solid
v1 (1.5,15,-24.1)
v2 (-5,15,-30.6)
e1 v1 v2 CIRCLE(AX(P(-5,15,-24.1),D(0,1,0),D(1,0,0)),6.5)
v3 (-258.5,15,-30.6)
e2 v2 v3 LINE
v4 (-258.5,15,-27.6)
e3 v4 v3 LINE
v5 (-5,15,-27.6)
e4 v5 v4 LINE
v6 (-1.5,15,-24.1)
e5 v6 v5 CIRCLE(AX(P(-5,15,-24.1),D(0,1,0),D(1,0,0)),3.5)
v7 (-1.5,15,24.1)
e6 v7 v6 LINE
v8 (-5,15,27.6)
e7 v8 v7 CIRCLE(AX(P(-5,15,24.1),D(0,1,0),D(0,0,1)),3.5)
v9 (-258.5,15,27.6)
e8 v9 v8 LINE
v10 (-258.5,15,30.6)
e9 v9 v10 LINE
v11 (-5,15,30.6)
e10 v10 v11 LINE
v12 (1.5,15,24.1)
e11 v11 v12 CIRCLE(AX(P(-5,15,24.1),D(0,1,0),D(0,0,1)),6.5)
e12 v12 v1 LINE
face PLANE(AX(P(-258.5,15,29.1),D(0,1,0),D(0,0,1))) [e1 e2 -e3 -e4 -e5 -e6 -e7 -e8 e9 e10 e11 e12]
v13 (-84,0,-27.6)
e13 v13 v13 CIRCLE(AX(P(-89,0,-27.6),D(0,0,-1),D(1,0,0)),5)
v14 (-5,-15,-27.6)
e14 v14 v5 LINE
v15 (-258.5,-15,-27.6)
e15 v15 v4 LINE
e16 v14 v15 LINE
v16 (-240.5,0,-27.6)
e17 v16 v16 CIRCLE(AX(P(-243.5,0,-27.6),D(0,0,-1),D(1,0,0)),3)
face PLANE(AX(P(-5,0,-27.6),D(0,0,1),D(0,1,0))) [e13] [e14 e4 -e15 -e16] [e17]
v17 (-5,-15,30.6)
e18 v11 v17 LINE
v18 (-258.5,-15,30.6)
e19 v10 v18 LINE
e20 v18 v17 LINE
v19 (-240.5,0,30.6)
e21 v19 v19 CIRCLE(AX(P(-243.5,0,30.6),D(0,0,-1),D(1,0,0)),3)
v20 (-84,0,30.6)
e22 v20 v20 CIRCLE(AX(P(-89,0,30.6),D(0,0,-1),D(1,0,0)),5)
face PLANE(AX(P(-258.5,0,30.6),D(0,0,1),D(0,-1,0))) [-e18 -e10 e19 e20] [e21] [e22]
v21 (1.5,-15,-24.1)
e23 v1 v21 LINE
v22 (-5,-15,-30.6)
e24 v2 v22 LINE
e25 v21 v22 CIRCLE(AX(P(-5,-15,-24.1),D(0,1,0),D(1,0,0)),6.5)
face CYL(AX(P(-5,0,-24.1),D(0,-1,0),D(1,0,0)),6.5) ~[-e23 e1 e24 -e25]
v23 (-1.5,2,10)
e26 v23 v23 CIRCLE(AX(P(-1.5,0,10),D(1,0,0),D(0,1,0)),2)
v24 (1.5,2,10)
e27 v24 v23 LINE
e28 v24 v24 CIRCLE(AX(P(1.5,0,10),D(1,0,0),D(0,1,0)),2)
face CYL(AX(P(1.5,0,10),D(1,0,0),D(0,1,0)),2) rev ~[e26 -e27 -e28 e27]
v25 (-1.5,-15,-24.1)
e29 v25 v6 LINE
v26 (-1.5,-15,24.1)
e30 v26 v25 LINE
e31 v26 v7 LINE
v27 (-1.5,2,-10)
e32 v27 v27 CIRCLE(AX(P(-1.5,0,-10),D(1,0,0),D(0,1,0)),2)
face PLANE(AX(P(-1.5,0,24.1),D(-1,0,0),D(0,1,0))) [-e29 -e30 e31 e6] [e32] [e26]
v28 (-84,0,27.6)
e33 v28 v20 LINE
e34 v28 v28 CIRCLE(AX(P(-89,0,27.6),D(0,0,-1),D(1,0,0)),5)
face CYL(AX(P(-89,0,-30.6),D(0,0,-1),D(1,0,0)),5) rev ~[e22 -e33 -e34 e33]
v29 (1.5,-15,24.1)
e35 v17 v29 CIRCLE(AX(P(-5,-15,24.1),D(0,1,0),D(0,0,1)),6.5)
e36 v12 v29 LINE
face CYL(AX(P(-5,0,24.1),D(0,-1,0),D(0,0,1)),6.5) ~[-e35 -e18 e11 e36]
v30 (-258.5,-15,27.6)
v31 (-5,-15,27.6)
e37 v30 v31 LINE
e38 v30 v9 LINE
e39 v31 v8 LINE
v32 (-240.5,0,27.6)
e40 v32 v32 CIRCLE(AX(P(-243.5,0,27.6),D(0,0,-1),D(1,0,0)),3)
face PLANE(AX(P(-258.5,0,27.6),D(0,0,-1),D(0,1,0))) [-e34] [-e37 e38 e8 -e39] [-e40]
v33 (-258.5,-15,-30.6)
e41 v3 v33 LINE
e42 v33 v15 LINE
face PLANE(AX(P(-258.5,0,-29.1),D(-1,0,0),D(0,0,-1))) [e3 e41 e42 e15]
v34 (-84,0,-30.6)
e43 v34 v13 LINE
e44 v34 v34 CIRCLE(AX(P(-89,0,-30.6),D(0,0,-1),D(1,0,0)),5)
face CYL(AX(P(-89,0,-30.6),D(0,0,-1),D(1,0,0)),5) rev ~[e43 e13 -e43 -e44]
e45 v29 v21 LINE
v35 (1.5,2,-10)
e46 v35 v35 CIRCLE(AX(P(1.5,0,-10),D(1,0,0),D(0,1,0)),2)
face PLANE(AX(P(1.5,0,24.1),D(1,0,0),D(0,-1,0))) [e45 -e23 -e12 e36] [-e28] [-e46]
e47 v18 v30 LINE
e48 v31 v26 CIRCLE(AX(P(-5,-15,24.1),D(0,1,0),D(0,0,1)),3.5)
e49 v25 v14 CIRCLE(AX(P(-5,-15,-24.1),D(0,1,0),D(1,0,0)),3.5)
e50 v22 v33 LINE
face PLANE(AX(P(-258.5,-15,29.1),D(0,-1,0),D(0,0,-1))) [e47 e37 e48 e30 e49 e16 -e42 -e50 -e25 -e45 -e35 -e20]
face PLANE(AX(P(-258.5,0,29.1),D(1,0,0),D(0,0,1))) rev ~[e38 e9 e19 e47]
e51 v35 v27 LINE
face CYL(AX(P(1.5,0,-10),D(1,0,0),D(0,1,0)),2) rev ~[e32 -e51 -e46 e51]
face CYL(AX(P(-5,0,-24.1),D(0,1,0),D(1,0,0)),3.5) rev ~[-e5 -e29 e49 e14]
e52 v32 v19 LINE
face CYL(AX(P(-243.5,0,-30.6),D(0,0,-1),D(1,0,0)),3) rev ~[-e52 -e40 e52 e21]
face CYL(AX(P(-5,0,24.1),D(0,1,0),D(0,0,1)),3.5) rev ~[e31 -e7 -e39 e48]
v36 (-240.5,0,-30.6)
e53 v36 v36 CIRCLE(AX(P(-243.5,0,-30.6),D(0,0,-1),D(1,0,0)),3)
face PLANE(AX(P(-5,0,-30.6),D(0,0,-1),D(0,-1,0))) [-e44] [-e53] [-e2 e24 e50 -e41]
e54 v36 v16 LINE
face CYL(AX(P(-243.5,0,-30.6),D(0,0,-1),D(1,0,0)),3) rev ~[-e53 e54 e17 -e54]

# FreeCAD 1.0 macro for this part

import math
import FreeCAD as App
import Part
import Sketcher
from FreeCAD import Vector
Q = App.Units.Quantity


def add_polygon(sketch, points):
    """Adds a closed chain of lines whose ends are joined by coincident constraints."""
    first, n = sketch.GeometryCount, len(points)
    for a, b in zip(points, points[1:] + points[:1]):
        sketch.addGeometry(Part.LineSegment(App.Vector(*a, 0), App.Vector(*b, 0)), False)
    for i in range(n):
        sketch.addConstraint(Sketcher.Constraint("Coincident", first + i, 2, first + (i + 1) % n, 1))

doc = App.newDocument("Part")
params = doc.addObject("Spreadsheet::Sheet", "Params")
for row, (alias, value) in enumerate([
    ("sketch1_width", "30 mm"),
    ("sketch1_height", "3 mm"),
    ("sketch2_radius", "5 mm"),
    ("sketch2_width", "253.5 mm"),
    ("sketch2_height", "48.2 mm"),
    ("sketch3_diameter", "10 mm"),
    ("sketch4_diameter", "4 mm"),
    ("sketch5_diameter", "6 mm"),
], start=1):
    params.set(f"A{row}", alias)
    params.set(f"B{row}", "=" + value)
    params.setAlias(f"B{row}", alias)

body = doc.addObject("PartDesign::Body", "Body")

# Sketch on YZ plane
sketch1 = doc.addObject("Sketcher::SketchObject", "Sketch")
body.addObject(sketch1)
sketch1.AttachmentSupport = (doc.YZ_Plane, [""])
sketch1.MapMode = "FlatFace"
sketch1.AttachmentOffset = App.Placement(Vector(0, 0, -258.5), App.Rotation())
add_polygon(sketch1, [(-15, 30.6), (-15, 27.6), (15, 27.6), (15, 30.6)])  # lines 0-3
sketch1.addConstraint([
    Sketcher.Constraint("Vertical", 0),
    Sketcher.Constraint("Horizontal", 1),
    Sketcher.Constraint("Vertical", 2),
    Sketcher.Constraint("Horizontal", 3),
    Sketcher.Constraint("DistanceX", 1, 1, 1, 2, Q("30 mm")),
    Sketcher.Constraint("DistanceY", 0, 2, 0, 1, Q("3 mm")),
    Sketcher.Constraint("DistanceX", 0, 2, -1, 1, Q("15 mm")),
    Sketcher.Constraint("DistanceY", -1, 1, 0, 2, Q("27.6 mm")),
])
sketch1.setExpression("Constraints[8]", "Params.sketch1_width")
sketch1.setExpression("Constraints[9]", "Params.sketch1_height")

# Sketch on XZ plane
sketch2 = doc.addObject("Sketcher::SketchObject", "Sketch001")
body.addObject(sketch2)
sketch2.AttachmentSupport = (doc.XZ_Plane, [""])
sketch2.MapMode = "FlatFace"
sketch2.addGeometry([
    Part.LineSegment(Vector(-258, 29, 0), Vector(-5, 29, 0)),  # 0
    Part.ArcOfCircle(Part.Circle(Vector(-5, 24, 0), Vector(0, 0, 1), 5), math.radians(0), math.radians(90)),  # 1
    Part.LineSegment(Vector(0, 24, 0), Vector(0, -24, 0)),  # 2
    Part.ArcOfCircle(Part.Circle(Vector(-5, -24, 0), Vector(0, 0, 1), 5), math.radians(-90), math.radians(0)),  # 3
    Part.LineSegment(Vector(-5, -29, 0), Vector(-258, -29, 0)),  # 4
], False)
sketch2.addConstraint([
    Sketcher.Constraint("Tangent", 0, 2, 1, 2),
    Sketcher.Constraint("Tangent", 1, 1, 2, 1),
    Sketcher.Constraint("Tangent", 2, 2, 3, 2),
    Sketcher.Constraint("Tangent", 3, 1, 4, 1),
    Sketcher.Constraint("Horizontal", 0),
    Sketcher.Constraint("Vertical", 2),
    Sketcher.Constraint("Horizontal", 4),
    Sketcher.Constraint("Equal", 1, 3),
    Sketcher.Constraint("Symmetric", 1, 1, 2, 2, -1, 1),
    Sketcher.Constraint("Vertical", 0, 1, 4, 2),
    Sketcher.Constraint("Radius", 1, Q("5 mm")),
    Sketcher.Constraint("DistanceX", 0, 1, 0, 2, Q("253.5 mm")),
    Sketcher.Constraint("DistanceY", 2, 2, 2, 1, Q("48.2 mm")),
])
sketch2.setExpression("Constraints[10]", "Params.sketch2_radius")
sketch2.setExpression("Constraints[11]", "Params.sketch2_width")
sketch2.setExpression("Constraints[12]", "Params.sketch2_height")
doc.recompute()

additivepipe = doc.addObject("PartDesign::AdditivePipe", "AdditivePipe")
body.addObject(additivepipe)
additivepipe.Profile = sketch1
additivepipe.Spine = (sketch2, ["Edge1", "Edge2", "Edge3", "Edge4", "Edge5"])

# Sketch on XY plane
sketch3 = doc.addObject("Sketcher::SketchObject", "Sketch002")
body.addObject(sketch3)
sketch3.AttachmentSupport = (doc.XY_Plane, [""])
sketch3.MapMode = "FlatFace"
sketch3.AttachmentOffset = App.Placement(Vector(0, 0, -30.6), App.Rotation())
sketch3.addGeometry(Part.Circle(Vector(-89, 0, 0), Vector(0, 0, 1), 5), False)
sketch3.addConstraint([
    Sketcher.Constraint("PointOnObject", 0, 3, -1),
    Sketcher.Constraint("Diameter", 0, Q("10 mm")),
    Sketcher.Constraint("DistanceX", 0, 3, -1, 1, Q("89 mm")),
])
sketch3.setExpression("Constraints[1]", "Params.sketch3_diameter")
pocket1 = doc.addObject("PartDesign::Pocket", "Pocket")
body.addObject(pocket1)
pocket1.Profile = sketch3
pocket1.Type = "ThroughAll"
pocket1.Reversed = True

# Sketch on YZ plane
sketch4 = doc.addObject("Sketcher::SketchObject", "Sketch003")
body.addObject(sketch4)
sketch4.AttachmentSupport = (doc.YZ_Plane, [""])
sketch4.MapMode = "FlatFace"
sketch4.AttachmentOffset = App.Placement(Vector(0, 0, 1.5), App.Rotation())
sketch4.addGeometry([
    Part.Circle(Vector(0, 10, 0), Vector(0, 0, 1), 2),
    Part.Circle(Vector(0, -10, 0), Vector(0, 0, 1), 2),
], False)
sketch4.addConstraint([
    Sketcher.Constraint("Equal", 0, 1),
    Sketcher.Constraint("Symmetric", 0, 3, 1, 3, -1, 1),
    Sketcher.Constraint("PointOnObject", 0, 3, -2),
    Sketcher.Constraint("Diameter", 0, Q("4 mm")),
    Sketcher.Constraint("DistanceY", -1, 1, 0, 3, Q("10 mm")),
])
sketch4.setExpression("Constraints[3]", "Params.sketch4_diameter")
pocket2 = doc.addObject("PartDesign::Pocket", "Pocket001")
body.addObject(pocket2)
pocket2.Profile = sketch4
pocket2.Type = "ThroughAll"

# Sketch on XY plane
sketch5 = doc.addObject("Sketcher::SketchObject", "Sketch004")
body.addObject(sketch5)
sketch5.AttachmentSupport = (doc.XY_Plane, [""])
sketch5.MapMode = "FlatFace"
sketch5.AttachmentOffset = App.Placement(Vector(0, 0, -30.6), App.Rotation())
sketch5.addGeometry(Part.Circle(Vector(-243.5, 0, 0), Vector(0, 0, 1), 3), False)
sketch5.addConstraint([
    Sketcher.Constraint("PointOnObject", 0, 3, -1),
    Sketcher.Constraint("Diameter", 0, Q("6 mm")),
    Sketcher.Constraint("DistanceX", 0, 3, -1, 1, Q("243.5 mm")),
])
sketch5.setExpression("Constraints[1]", "Params.sketch5_diameter")
pocket3 = doc.addObject("PartDesign::Pocket", "Pocket002")
body.addObject(pocket3)
pocket3.Profile = sketch5
pocket3.Type = "ThroughAll"
pocket3.Reversed = True

doc.recompute()
